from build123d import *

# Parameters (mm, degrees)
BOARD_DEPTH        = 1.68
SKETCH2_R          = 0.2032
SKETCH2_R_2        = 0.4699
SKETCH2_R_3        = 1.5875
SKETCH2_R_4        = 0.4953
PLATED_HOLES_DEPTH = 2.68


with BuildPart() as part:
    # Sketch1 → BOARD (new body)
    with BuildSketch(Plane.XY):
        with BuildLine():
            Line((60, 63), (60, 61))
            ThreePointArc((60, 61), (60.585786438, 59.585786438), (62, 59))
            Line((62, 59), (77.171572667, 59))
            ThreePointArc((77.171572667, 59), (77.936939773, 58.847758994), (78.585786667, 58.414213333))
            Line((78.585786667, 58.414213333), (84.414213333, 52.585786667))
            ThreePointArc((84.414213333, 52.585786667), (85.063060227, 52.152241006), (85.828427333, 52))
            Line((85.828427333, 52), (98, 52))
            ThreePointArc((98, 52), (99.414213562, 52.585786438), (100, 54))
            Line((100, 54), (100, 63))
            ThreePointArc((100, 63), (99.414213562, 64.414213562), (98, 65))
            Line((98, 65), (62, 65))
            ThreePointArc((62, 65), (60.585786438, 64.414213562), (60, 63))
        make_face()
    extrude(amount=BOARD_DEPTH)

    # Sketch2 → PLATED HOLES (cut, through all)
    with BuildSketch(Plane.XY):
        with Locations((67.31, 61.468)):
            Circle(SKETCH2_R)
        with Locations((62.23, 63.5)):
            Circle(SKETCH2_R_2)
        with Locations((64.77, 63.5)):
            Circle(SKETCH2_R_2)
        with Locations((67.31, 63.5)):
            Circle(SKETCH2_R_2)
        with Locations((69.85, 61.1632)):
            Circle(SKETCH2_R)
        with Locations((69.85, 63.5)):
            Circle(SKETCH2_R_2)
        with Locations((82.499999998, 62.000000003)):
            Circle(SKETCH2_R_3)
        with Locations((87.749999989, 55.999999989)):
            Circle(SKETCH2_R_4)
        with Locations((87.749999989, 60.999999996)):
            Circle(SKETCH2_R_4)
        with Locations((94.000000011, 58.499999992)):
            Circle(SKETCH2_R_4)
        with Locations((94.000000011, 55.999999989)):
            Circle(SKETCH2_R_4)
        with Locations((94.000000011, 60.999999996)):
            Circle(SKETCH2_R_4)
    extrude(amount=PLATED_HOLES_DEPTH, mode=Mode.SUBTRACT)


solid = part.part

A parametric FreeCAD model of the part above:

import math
import FreeCAD as App
import Part
import Sketcher
from FreeCAD import Vector
Q = App.Units.Quantity

doc = App.newDocument("Part")
body = doc.addObject("PartDesign::Body", "Body")

sketch1 = body.newObject("Sketcher::SketchObject", "Sketch")
sketch1.AttachmentSupport = (doc.getObject("XY_Plane"), [""])
sketch1.MapMode = "FlatFace"
sketch1.addGeometry([
    Part.LineSegment(Vector(60, 63, 0), Vector(60, 61, 0)),
    Part.ArcOfCircle(Part.Circle(Vector(62, 61, 0), Vector(0, 0, 1), 2), math.radians(-180), math.radians(-90)),
    Part.LineSegment(Vector(62, 59, 0), Vector(77.2, 59, 0)),
    Part.ArcOfCircle(Part.Circle(Vector(77.2, 57, 0), Vector(0, 0, 1), 2), math.radians(45), math.radians(90)),
    Part.LineSegment(Vector(78.6, 58.4, 0), Vector(84.4, 52.6, 0)),
    Part.ArcOfCircle(Part.Circle(Vector(85.8, 54, 0), Vector(0, 0, 1), 2), math.radians(-135), math.radians(-90)),
    Part.LineSegment(Vector(85.8, 52, 0), Vector(98, 52, 0)),
    Part.ArcOfCircle(Part.Circle(Vector(98, 54, 0), Vector(0, 0, 1), 2), math.radians(-90), math.radians(0)),
    Part.LineSegment(Vector(100, 54, 0), Vector(100, 63, 0)),
    Part.ArcOfCircle(Part.Circle(Vector(98, 63, 0), Vector(0, 0, 1), 2), math.radians(0), math.radians(90)),
    Part.LineSegment(Vector(98, 65, 0), Vector(62, 65, 0)),
    Part.ArcOfCircle(Part.Circle(Vector(62, 63, 0), Vector(0, 0, 1), 2), math.radians(90), math.radians(180)),
], False)
sketch1.addConstraint([
    Sketcher.Constraint("Tangent", 0, 2, 1, 1),
    Sketcher.Constraint("Tangent", 1, 2, 2, 1),
    Sketcher.Constraint("Tangent", 2, 2, 3, 2),
    Sketcher.Constraint("Tangent", 3, 1, 4, 1),
    Sketcher.Constraint("Tangent", 4, 2, 5, 1),
    Sketcher.Constraint("Tangent", 5, 2, 6, 1),
    Sketcher.Constraint("Tangent", 6, 2, 7, 1),
    Sketcher.Constraint("Tangent", 7, 2, 8, 1),
    Sketcher.Constraint("Tangent", 8, 2, 9, 1),
    Sketcher.Constraint("Tangent", 9, 2, 10, 1),
    Sketcher.Constraint("Tangent", 10, 2, 11, 1),
    Sketcher.Constraint("Tangent", 11, 2, 0, 1),
    Sketcher.Constraint("Vertical", 0),
    Sketcher.Constraint("Horizontal", 2),
    Sketcher.Constraint("Horizontal", 6),
    Sketcher.Constraint("Vertical", 8),
    Sketcher.Constraint("Horizontal", 10),
    Sketcher.Constraint("Equal", 1, 3),
    Sketcher.Constraint("Equal", 3, 5),
    Sketcher.Constraint("Equal", 5, 7),
    Sketcher.Constraint("Equal", 7, 9),
    Sketcher.Constraint("Equal", 9, 11),
    Sketcher.Constraint("Radius", 1, 2.0),
    Sketcher.Constraint("DistanceX", 10, 2, 10, 1, 36.0),
    Sketcher.Constraint("DistanceY", 0, 2, 0, 1, 2.0),
    Sketcher.Constraint("DistanceY", 8, 1, 8, 2, 9.0),
    Sketcher.Constraint("Angle", 4, Q("-45 deg")),
    Sketcher.Constraint("DistanceX", -1, 1, 1, 3, 62.0),
    Sketcher.Constraint("DistanceY", -1, 1, 1, 3, 61.0),
    Sketcher.Constraint("DistanceX", 2, 1, 2, 2, 15.171573),
])
pad1 = body.newObject("PartDesign::Pad", "Pad")
pad1.Profile = sketch1
pad1.Length = 1.68

sketch2 = body.newObject("Sketcher::SketchObject", "Sketch001")
sketch2.AttachmentSupport = (doc.getObject("XY_Plane"), [""])
sketch2.MapMode = "FlatFace"
sketch2.addGeometry([
    Part.Circle(Vector(67.31, 61.47, 0), Vector(0, 0, 1), 0.2),
    Part.Circle(Vector(62.23, 63.5, 0), Vector(0, 0, 1), 0.47),
    Part.Circle(Vector(64.77, 63.5, 0), Vector(0, 0, 1), 0.47),
    Part.Circle(Vector(67.31, 63.5, 0), Vector(0, 0, 1), 0.47),
    Part.Circle(Vector(69.85, 61.16, 0), Vector(0, 0, 1), 0.2),
    Part.Circle(Vector(69.85, 63.5, 0), Vector(0, 0, 1), 0.47),
    Part.Circle(Vector(82.5, 62, 0), Vector(0, 0, 1), 1.59),
    Part.Circle(Vector(87.75, 56, 0), Vector(0, 0, 1), 0.5),
    Part.Circle(Vector(87.75, 61, 0), Vector(0, 0, 1), 0.5),
    Part.Circle(Vector(94, 58.5, 0), Vector(0, 0, 1), 0.5),
    Part.Circle(Vector(94, 56, 0), Vector(0, 0, 1), 0.5),
    Part.Circle(Vector(94, 61, 0), Vector(0, 0, 1), 0.5),
], False)
sketch2.addConstraint([
    Sketcher.Constraint("Equal", 1, 2),
    Sketcher.Constraint("Equal", 2, 3),
    Sketcher.Constraint("Equal", 0, 4),
    Sketcher.Constraint("Equal", 3, 5),
    Sketcher.Constraint("Equal", 7, 8),
    Sketcher.Constraint("Equal", 8, 9),
    Sketcher.Constraint("Equal", 9, 10),
    Sketcher.Constraint("Equal", 10, 11),
    Sketcher.Constraint("Horizontal", 1, 3, 2, 3),
    Sketcher.Constraint("Horizontal", 2, 3, 3, 3),
    Sketcher.Constraint("Horizontal", 3, 3, 5, 3),
    Sketcher.Constraint("Horizontal", 7, 3, 10, 3),
    Sketcher.Constraint("Horizontal", 8, 3, 11, 3),
    Sketcher.Constraint("Vertical", 0, 3, 3, 3),
    Sketcher.Constraint("Vertical", 4, 3, 5, 3),
    Sketcher.Constraint("Vertical", 7, 3, 8, 3),
    Sketcher.Constraint("Vertical", 9, 3, 10, 3),
    Sketcher.Constraint("Vertical", 10, 3, 11, 3),
    Sketcher.Constraint("Diameter", 6, 3.175),
    Sketcher.Constraint("DistanceY", -1, 1, 6, 3, 62.0),
    Sketcher.Constraint("DistanceY", -1, 1, 7, 3, 56.0),
    Sketcher.Constraint("DistanceY", -1, 1, 8, 3, 61.0),
    Sketcher.Constraint("DistanceX", -1, 1, 9, 3, 94.0),
    Sketcher.Constraint("DistanceY", 9, 3, 5, 3, 5.0),
    Sketcher.Constraint("Diameter", 0, 0.4064),
    Sketcher.Constraint("Diameter", 1, 0.9398),
    Sketcher.Constraint("Diameter", 7, 0.9906),
    Sketcher.Constraint("DistanceY", -1, 1, 1, 3, 63.5),
    Sketcher.Constraint("DistanceX", -1, 1, 6, 3, 82.5),
    Sketcher.Constraint("DistanceX", 4, 3, 7, 3, 17.9),
    Sketcher.Constraint("DistanceX", -1, 1, 0, 3, 67.31),
    Sketcher.Constraint("DistanceX", -1, 1, 1, 3, 62.23),
    Sketcher.Constraint("DistanceX", -1, 1, 2, 3, 64.77),
    Sketcher.Constraint("DistanceX", -1, 1, 4, 3, 69.85),
    Sketcher.Constraint("DistanceY", -1, 1, 0, 3, 61.468),
    Sketcher.Constraint("DistanceY", -1, 1, 4, 3, 61.1632),
])
pocket1 = body.newObject("PartDesign::Pocket", "Pocket")
pocket1.Profile = sketch2
pocket1.Type = "ThroughAll"
pocket1.Reversed = True

doc.recompute()
